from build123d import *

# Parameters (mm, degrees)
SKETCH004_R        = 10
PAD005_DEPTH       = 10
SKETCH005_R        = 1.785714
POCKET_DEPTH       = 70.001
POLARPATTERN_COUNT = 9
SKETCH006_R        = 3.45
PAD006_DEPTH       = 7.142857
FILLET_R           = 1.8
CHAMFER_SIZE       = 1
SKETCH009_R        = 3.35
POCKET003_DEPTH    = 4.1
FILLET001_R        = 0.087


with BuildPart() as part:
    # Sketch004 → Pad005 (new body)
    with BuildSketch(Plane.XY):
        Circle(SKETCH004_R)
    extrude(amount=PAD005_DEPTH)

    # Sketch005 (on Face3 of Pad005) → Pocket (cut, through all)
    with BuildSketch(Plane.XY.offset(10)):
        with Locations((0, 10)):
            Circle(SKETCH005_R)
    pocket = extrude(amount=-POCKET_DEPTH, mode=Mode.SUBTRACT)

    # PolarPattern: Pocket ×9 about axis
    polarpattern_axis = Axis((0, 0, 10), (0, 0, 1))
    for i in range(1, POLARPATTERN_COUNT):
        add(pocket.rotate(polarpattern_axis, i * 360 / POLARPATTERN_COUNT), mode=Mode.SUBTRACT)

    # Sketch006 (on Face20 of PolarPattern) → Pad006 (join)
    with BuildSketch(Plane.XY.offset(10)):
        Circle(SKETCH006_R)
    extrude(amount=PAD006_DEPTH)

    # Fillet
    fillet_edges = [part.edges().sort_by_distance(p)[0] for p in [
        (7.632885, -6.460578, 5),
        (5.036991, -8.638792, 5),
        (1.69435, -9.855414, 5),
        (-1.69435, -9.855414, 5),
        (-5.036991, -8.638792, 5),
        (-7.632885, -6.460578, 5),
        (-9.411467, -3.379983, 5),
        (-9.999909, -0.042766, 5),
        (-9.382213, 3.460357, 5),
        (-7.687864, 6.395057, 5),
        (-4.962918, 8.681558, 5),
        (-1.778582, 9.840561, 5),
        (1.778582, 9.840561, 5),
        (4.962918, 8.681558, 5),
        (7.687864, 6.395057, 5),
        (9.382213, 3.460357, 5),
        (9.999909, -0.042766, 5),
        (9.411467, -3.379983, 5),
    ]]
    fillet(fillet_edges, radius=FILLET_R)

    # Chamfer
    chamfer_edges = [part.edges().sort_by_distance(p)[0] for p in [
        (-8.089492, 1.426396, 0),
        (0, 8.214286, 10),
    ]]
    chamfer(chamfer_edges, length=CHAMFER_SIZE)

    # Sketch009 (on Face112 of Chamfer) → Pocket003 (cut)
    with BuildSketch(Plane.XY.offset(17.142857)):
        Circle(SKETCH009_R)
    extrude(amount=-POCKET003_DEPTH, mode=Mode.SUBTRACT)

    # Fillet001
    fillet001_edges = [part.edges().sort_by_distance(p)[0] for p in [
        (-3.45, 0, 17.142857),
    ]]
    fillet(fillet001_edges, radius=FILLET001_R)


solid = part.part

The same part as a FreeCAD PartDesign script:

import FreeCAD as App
import Part
import Sketcher
from FreeCAD import Vector
Q = App.Units.Quantity


def edges_at(feature, points):
    """Names of the edges that pass closest to the given points."""
    edges = feature.Shape.Edges
    near = lambda p: min(range(len(edges)), key=lambda i: edges[i].distToShape(Part.Vertex(*p))[0])
    return sorted({f"Edge{near(p) + 1}" for p in points})

doc = App.newDocument("Part")
body = doc.addObject("PartDesign::Body", "Body")

# Sketch on XY plane
sketch1 = body.newObject("Sketcher::SketchObject", "Sketch")
sketch1.AttachmentSupport = (doc.getObject("XY_Plane"), [""])
sketch1.MapMode = "FlatFace"
sketch1.addGeometry(Part.Circle(Vector(0, 0, 0), Vector(0, 0, 1), 10), False)
sketch1.addConstraint(Sketcher.Constraint("Coincident", 0, 3, -1, 1))
sketch1.addConstraint(Sketcher.Constraint("Diameter", 0, Q("20 mm")))
pad1 = body.newObject("PartDesign::Pad", "Pad")
pad1.Profile = sketch1
pad1.Length = 10

# Sketch on XY plane
sketch2 = body.newObject("Sketcher::SketchObject", "Sketch001")
sketch2.AttachmentSupport = (doc.getObject("XY_Plane"), [""])
sketch2.MapMode = "FlatFace"
sketch2.AttachmentOffset = App.Placement(Vector(0, 0, 10), App.Rotation())
sketch2.addGeometry(Part.Circle(Vector(0, 10, 0), Vector(0, 0, 1), 1.8), False)
sketch2.addConstraint(Sketcher.Constraint("PointOnObject", 0, 3, -2))
sketch2.addConstraint(Sketcher.Constraint("DistanceY", -1, 1, 0, 3, Q("10 mm")))
sketch2.addConstraint(Sketcher.Constraint("Diameter", 0, Q("3.571428 mm")))
pocket1 = body.newObject("PartDesign::Pocket", "Pocket")
pocket1.Profile = sketch2
pocket1.Type = "ThroughAll"
doc.recompute()

polarpattern = body.newObject("PartDesign::PolarPattern", "PolarPattern")
polarpattern.Originals = [pocket1]
polarpattern.Axis = (doc.getObject("Z_Axis"), [""])
polarpattern.Angle = 360
polarpattern.Occurrences = 9
body.Tip = polarpattern

# Sketch on XY plane
sketch3 = body.newObject("Sketcher::SketchObject", "Sketch002")
sketch3.AttachmentSupport = (doc.getObject("XY_Plane"), [""])
sketch3.MapMode = "FlatFace"
sketch3.AttachmentOffset = App.Placement(Vector(0, 0, 10), App.Rotation())
sketch3.addGeometry(Part.Circle(Vector(0, 0, 0), Vector(0, 0, 1), 3.5), False)
sketch3.addConstraint(Sketcher.Constraint("Coincident", 0, 3, -1, 1))
sketch3.addConstraint(Sketcher.Constraint("Diameter", 0, Q("6.9 mm")))
pad2 = body.newObject("PartDesign::Pad", "Pad001")
pad2.Profile = sketch3
pad2.Length = 7.142857
doc.recompute()

fillet = body.newObject("PartDesign::Fillet", "Fillet")
fillet.Base = (pad2, edges_at(pad2, [
    (7.633, -6.461, 5),
    (5.037, -8.639, 5),
    (1.694, -9.855, 5),
    (-1.694, -9.855, 5),
    (-5.037, -8.639, 5),
    (-7.633, -6.461, 5),
    (-9.411, -3.38, 5),
    (-10, -0.043, 5),
    (-9.382, 3.46, 5),
    (-7.688, 6.395, 5),
    (-4.963, 8.682, 5),
    (-1.779, 9.841, 5),
    (1.779, 9.841, 5),
    (4.963, 8.682, 5),
    (7.688, 6.395, 5),
    (9.382, 3.46, 5),
    (10, -0.043, 5),
    (9.411, -3.38, 5),
]))
fillet.Radius = 1.8
doc.recompute()

chamfer = body.newObject("PartDesign::Chamfer", "Chamfer")
chamfer.Base = (fillet, edges_at(fillet, [(-8.089, 1.426, 0), (0, 8.214, 10)]))
chamfer.Size = 1

# Sketch on XY plane
sketch4 = body.newObject("Sketcher::SketchObject", "Sketch003")
sketch4.AttachmentSupport = (doc.getObject("XY_Plane"), [""])
sketch4.MapMode = "FlatFace"
sketch4.AttachmentOffset = App.Placement(Vector(0, 0, 17.142857), App.Rotation())
sketch4.addGeometry(Part.Circle(Vector(0, 0, 0), Vector(0, 0, 1), 3.4), False)
sketch4.addConstraint(Sketcher.Constraint("Coincident", 0, 3, -1, 1))
sketch4.addConstraint(Sketcher.Constraint("Diameter", 0, Q("6.7 mm")))
pocket2 = body.newObject("PartDesign::Pocket", "Pocket001")
pocket2.Profile = sketch4
pocket2.Length = 4.1
doc.recompute()

fillet2 = body.newObject("PartDesign::Fillet", "Fillet001")
fillet2.Base = (pocket2, edges_at(pocket2, [(-3.45, 0, 17.143)]))
fillet2.Radius = 0.087

doc.recompute()
